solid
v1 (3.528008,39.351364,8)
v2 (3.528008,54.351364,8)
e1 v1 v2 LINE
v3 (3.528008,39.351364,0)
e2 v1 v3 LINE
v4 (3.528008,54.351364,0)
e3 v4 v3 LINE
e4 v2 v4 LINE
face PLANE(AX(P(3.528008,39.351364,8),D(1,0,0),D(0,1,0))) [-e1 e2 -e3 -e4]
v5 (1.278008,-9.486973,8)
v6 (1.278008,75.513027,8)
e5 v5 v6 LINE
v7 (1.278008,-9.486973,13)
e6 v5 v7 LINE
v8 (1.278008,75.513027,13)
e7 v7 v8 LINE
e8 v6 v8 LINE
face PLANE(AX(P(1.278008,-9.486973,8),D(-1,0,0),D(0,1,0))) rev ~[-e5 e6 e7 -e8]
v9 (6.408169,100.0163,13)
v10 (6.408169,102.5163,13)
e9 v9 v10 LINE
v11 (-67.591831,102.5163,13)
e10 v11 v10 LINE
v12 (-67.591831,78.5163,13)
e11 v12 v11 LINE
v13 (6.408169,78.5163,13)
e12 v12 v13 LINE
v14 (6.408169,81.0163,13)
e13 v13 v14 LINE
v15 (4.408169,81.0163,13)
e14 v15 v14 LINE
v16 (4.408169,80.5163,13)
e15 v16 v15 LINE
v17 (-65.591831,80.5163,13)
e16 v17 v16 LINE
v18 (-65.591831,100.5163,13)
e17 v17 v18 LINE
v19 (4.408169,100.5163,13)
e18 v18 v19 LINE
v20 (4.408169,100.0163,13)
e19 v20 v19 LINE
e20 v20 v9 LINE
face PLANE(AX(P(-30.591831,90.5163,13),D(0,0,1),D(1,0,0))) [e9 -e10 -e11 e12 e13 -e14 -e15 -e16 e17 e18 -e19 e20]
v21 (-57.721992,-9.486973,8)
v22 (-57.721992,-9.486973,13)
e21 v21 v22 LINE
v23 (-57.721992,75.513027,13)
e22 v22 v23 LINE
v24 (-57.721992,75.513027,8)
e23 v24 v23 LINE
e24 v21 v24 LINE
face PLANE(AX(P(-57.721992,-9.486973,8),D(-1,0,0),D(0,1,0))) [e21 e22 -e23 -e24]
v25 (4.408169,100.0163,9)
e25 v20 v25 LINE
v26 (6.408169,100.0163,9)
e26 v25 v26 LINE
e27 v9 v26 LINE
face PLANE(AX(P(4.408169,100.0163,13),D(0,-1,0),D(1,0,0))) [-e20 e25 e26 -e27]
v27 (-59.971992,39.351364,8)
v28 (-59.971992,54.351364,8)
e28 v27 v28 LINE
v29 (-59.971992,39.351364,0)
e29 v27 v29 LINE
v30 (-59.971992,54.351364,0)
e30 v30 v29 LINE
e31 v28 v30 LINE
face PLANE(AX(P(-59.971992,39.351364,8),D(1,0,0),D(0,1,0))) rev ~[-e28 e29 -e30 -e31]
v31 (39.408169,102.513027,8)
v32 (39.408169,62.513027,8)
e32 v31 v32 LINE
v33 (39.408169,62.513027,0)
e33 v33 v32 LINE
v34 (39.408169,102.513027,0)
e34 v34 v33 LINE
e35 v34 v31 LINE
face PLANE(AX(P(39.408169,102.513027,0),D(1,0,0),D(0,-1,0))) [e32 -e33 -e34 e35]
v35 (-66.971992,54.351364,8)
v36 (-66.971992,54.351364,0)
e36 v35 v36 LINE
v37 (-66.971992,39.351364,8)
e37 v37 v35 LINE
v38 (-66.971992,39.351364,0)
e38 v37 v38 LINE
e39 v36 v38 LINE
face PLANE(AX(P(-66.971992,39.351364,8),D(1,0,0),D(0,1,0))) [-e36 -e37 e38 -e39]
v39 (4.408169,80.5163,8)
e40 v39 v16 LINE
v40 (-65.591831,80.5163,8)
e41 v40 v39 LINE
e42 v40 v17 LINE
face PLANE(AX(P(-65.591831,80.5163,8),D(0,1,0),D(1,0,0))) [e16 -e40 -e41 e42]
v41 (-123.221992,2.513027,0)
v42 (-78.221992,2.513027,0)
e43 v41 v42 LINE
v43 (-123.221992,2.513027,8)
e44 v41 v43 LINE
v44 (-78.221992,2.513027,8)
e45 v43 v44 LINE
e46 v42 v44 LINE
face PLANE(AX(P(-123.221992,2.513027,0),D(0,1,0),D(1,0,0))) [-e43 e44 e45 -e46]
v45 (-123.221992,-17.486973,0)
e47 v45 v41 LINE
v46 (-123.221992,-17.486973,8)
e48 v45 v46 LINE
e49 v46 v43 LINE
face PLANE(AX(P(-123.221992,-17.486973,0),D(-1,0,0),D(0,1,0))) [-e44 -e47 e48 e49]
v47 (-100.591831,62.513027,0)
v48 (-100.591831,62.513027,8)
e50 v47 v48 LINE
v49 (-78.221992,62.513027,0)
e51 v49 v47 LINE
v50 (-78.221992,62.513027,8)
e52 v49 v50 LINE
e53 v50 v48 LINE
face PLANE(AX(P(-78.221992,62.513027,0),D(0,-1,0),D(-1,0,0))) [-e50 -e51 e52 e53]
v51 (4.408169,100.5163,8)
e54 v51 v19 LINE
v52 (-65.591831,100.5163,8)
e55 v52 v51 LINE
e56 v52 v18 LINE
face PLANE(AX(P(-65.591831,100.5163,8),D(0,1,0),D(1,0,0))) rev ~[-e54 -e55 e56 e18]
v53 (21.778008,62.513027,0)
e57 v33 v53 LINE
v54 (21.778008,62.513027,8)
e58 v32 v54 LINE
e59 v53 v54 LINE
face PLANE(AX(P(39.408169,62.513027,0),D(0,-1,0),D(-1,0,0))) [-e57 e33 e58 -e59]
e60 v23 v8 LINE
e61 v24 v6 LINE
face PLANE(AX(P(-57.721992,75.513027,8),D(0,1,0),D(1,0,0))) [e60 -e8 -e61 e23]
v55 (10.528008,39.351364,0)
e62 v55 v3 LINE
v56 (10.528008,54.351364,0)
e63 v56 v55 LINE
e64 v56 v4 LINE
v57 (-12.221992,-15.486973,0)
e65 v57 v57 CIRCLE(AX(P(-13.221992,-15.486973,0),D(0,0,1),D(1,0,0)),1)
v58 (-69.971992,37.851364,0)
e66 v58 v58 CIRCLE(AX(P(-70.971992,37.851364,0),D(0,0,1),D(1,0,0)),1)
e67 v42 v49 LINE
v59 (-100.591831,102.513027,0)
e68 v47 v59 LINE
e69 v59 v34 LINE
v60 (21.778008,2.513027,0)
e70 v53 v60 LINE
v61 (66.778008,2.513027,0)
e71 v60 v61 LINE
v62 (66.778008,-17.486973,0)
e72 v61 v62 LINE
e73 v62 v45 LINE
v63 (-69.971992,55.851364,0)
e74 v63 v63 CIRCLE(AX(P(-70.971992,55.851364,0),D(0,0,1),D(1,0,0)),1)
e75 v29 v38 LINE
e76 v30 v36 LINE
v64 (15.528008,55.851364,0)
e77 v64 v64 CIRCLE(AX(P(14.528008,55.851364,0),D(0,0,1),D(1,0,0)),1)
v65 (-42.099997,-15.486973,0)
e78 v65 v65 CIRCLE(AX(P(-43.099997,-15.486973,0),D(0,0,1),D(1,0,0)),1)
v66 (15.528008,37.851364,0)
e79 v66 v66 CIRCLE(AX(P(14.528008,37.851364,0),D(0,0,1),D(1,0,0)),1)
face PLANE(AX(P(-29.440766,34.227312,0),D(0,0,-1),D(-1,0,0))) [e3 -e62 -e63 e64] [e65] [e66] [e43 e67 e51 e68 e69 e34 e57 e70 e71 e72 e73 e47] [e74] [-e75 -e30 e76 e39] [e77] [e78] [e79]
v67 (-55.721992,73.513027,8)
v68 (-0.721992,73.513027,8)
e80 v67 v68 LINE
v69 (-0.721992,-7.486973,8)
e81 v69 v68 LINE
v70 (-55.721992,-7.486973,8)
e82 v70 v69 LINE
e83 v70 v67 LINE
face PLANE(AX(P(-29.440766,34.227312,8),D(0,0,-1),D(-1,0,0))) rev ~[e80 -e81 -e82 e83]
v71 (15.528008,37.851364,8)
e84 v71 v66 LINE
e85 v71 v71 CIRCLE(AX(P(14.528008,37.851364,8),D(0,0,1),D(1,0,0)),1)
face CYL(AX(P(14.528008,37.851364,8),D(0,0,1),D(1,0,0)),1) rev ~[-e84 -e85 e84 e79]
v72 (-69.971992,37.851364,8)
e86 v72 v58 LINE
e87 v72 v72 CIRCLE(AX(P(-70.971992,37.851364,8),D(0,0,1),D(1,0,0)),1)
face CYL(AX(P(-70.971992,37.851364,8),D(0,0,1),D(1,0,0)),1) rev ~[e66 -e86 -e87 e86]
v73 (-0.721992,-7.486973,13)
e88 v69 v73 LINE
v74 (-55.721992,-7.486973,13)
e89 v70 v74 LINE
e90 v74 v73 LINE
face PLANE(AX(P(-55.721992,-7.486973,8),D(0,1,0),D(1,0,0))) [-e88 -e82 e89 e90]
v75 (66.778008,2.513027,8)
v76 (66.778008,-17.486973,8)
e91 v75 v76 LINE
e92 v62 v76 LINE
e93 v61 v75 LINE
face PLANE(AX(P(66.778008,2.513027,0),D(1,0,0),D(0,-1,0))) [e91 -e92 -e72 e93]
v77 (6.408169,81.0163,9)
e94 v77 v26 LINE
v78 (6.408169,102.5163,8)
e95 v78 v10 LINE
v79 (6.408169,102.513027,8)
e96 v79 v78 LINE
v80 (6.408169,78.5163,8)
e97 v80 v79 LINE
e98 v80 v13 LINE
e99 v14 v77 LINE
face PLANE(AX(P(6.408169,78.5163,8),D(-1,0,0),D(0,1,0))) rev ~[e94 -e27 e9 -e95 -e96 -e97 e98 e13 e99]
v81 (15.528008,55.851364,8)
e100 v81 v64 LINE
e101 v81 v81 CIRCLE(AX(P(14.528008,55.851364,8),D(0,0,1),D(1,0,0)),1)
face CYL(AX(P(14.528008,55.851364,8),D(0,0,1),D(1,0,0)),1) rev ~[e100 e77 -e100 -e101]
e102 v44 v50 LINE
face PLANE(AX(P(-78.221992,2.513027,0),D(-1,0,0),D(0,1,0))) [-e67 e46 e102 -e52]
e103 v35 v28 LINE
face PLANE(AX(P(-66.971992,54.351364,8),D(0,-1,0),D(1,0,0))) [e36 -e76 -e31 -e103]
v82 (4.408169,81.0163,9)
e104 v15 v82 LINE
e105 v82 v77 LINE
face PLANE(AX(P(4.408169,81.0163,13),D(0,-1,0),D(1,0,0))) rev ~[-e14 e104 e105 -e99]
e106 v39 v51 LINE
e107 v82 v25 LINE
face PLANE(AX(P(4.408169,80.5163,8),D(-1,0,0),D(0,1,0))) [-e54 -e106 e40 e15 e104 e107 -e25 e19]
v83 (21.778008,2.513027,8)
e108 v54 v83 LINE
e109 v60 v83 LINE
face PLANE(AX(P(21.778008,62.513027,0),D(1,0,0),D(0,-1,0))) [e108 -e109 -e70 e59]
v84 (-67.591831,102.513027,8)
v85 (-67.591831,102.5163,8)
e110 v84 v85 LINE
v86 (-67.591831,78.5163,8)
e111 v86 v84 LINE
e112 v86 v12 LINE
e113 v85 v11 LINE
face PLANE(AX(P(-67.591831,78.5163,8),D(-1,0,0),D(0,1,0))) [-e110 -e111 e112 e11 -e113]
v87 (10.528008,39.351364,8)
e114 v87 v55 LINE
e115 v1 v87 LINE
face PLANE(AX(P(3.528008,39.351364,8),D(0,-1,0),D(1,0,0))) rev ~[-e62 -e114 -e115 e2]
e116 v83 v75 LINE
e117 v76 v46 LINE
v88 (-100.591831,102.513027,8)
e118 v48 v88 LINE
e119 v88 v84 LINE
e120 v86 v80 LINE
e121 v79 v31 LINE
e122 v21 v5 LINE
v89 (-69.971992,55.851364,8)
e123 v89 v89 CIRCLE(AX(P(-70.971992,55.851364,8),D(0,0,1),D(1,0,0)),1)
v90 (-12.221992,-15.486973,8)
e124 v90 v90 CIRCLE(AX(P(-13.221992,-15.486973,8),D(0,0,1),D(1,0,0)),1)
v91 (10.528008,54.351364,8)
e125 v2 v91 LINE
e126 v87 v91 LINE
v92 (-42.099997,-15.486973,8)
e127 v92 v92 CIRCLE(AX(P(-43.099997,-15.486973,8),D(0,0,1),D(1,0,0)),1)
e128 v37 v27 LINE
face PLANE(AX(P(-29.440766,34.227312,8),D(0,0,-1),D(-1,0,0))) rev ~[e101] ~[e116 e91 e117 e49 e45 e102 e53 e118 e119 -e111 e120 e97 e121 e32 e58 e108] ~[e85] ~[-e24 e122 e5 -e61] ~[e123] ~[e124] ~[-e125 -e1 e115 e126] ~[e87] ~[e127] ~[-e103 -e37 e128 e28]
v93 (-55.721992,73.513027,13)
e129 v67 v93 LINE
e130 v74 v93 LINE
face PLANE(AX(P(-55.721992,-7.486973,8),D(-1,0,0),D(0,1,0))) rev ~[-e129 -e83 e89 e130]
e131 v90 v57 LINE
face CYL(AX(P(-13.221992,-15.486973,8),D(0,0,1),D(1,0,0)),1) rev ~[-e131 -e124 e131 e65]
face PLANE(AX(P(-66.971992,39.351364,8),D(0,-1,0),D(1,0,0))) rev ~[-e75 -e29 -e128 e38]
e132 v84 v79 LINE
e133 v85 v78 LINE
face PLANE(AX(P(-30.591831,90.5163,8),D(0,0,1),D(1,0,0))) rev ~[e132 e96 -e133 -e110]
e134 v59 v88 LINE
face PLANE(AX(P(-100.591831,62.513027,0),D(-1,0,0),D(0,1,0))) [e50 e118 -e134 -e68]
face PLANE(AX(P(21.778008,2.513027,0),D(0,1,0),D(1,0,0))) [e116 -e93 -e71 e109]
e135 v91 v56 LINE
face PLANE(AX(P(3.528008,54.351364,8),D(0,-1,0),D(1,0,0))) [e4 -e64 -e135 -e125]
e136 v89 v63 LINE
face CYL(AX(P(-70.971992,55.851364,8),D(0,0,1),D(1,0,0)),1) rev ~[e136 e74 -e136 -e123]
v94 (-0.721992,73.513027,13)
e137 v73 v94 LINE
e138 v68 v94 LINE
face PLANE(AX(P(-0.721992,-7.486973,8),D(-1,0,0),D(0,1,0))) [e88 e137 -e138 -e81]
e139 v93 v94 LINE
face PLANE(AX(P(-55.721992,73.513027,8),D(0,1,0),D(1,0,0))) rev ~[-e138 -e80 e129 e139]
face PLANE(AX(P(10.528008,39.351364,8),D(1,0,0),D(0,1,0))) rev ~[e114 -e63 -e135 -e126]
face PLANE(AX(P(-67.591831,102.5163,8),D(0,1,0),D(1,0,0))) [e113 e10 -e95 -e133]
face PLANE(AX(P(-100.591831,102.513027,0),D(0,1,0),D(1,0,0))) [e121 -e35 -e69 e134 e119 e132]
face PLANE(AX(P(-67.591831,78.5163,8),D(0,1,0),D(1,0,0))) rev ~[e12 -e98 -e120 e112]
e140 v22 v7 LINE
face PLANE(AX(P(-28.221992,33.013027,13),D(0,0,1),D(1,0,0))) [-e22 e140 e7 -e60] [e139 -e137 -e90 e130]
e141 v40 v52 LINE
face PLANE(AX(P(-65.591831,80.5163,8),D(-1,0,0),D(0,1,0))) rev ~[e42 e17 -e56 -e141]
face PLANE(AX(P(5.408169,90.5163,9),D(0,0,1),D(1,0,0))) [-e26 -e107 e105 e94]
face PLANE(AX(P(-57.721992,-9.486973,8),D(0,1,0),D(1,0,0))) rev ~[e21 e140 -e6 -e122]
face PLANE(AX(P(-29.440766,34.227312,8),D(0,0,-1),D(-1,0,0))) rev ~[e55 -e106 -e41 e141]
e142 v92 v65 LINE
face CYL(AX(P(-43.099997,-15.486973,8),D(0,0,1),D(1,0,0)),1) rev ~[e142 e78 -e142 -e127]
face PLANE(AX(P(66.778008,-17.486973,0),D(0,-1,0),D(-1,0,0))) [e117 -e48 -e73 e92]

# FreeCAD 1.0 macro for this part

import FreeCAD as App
import Part
import Sketcher
from FreeCAD import Vector

doc = App.newDocument("Part")
body = doc.addObject("PartDesign::Body", "Body")

sketch1 = doc.addObject("Sketcher::SketchObject", "Sketch")
body.addObject(sketch1)
sketch1.AttachmentSupport = (doc.XY_Plane, [""])
sketch1.MapMode = "FlatFace"
sketch1.addGeometry([
    Part.LineSegment(Vector(39.408169, 62.513027, 0), Vector(39.408169, 102.513027, 0)),
    Part.LineSegment(Vector(39.408169, 102.513027, 0), Vector(-100.591831, 102.513027, 0)),
    Part.LineSegment(Vector(-100.591831, 102.513027, 0), Vector(-100.591831, 62.513027, 0)),
    Part.LineSegment(Vector(-100.591831, 62.513027, 0), Vector(-78.221992, 62.513027, 0)),
    Part.LineSegment(Vector(-78.221992, 62.513027, 0), Vector(-78.221992, 2.513027, 0)),
    Part.LineSegment(Vector(-78.221992, 2.513027, 0), Vector(-123.221992, 2.513027, 0)),
    Part.LineSegment(Vector(-123.221992, 2.513027, 0), Vector(-123.221992, -17.486973, 0)),
    Part.LineSegment(Vector(-123.221992, -17.486973, 0), Vector(66.778008, -17.486973, 0)),
    Part.LineSegment(Vector(66.778008, -17.486973, 0), Vector(66.778008, 2.513027, 0)),
    Part.LineSegment(Vector(66.778008, 2.513027, 0), Vector(21.778008, 2.513027, 0)),
    Part.LineSegment(Vector(21.778008, 2.513027, 0), Vector(21.778008, 62.513027, 0)),
    Part.LineSegment(Vector(21.778008, 62.513027, 0), Vector(39.408169, 62.513027, 0)),
], False)
sketch1.addConstraint([
    Sketcher.Constraint("Coincident", 0, 2, 1, 1),
    Sketcher.Constraint("Coincident", 1, 2, 2, 1),
    Sketcher.Constraint("Coincident", 2, 2, 3, 1),
    Sketcher.Constraint("Coincident", 3, 2, 4, 1),
    Sketcher.Constraint("Coincident", 4, 2, 5, 1),
    Sketcher.Constraint("Coincident", 5, 2, 6, 1),
    Sketcher.Constraint("Coincident", 6, 2, 7, 1),
    Sketcher.Constraint("Coincident", 7, 2, 8, 1),
    Sketcher.Constraint("Coincident", 8, 2, 9, 1),
    Sketcher.Constraint("Coincident", 9, 2, 10, 1),
    Sketcher.Constraint("Coincident", 10, 2, 11, 1),
    Sketcher.Constraint("Coincident", 11, 2, 0, 1),
    Sketcher.Constraint("Vertical", 0),
    Sketcher.Constraint("Horizontal", 1),
    Sketcher.Constraint("Vertical", 2),
    Sketcher.Constraint("Horizontal", 3),
    Sketcher.Constraint("Vertical", 4),
    Sketcher.Constraint("Horizontal", 5),
    Sketcher.Constraint("Vertical", 6),
    Sketcher.Constraint("Horizontal", 7),
    Sketcher.Constraint("Vertical", 8),
    Sketcher.Constraint("Horizontal", 9),
    Sketcher.Constraint("Vertical", 10),
    Sketcher.Constraint("Horizontal", 11),
    Sketcher.Constraint("Horizontal", 5, 2, 8, 2),
    Sketcher.Constraint("Horizontal", 3, 2, 10, 2),
    Sketcher.Constraint("Equal", 5, 9),
    Sketcher.Constraint("DistanceX", 1, 2, 1, 1, 140.0),
    Sketcher.Constraint("DistanceX", 5, 2, 5, 1, 45.0),
    Sketcher.Constraint("DistanceX", 7, 1, 7, 2, 190.0),
    Sketcher.Constraint("DistanceY", 0, 1, 0, 2, 40.0),
    Sketcher.Constraint("DistanceY", 4, 2, 4, 1, 60.0),
    Sketcher.Constraint("DistanceY", 6, 2, 6, 1, 20.0),
    Sketcher.Constraint("DistanceX", 3, 1, 3, 2, 22.369838),
    Sketcher.Constraint("DistanceX", -1, 1, 0, 2, 39.408169),
    Sketcher.Constraint("DistanceY", -1, 1, 0, 2, 102.513027),
])
pad1 = doc.addObject("PartDesign::Pad", "Pad")
body.addObject(pad1)
pad1.Profile = sketch1
pad1.Length = 8

sketch2 = doc.addObject("Sketcher::SketchObject", "Sketch001")
body.addObject(sketch2)
sketch2.AttachmentSupport = (doc.XY_Plane, [""])
sketch2.MapMode = "FlatFace"
sketch2.AttachmentOffset = App.Placement(Vector(0, 0, 8), App.Rotation())
sketch2.addGeometry([
    Part.LineSegment(Vector(-57.721992, 75.513027, 0), Vector(-57.721992, -9.486973, 0)),
    Part.LineSegment(Vector(-57.721992, -9.486973, 0), Vector(1.278008, -9.486973, 0)),
    Part.LineSegment(Vector(1.278008, -9.486973, 0), Vector(1.278008, 75.513027, 0)),
    Part.LineSegment(Vector(1.278008, 75.513027, 0), Vector(-57.721992, 75.513027, 0)),
    Part.LineSegment(Vector(-0.721992, -7.486973, 0), Vector(-55.721992, -7.486973, 0)),
    Part.LineSegment(Vector(-55.721992, -7.486973, 0), Vector(-55.721992, 73.513027, 0)),
    Part.LineSegment(Vector(-55.721992, 73.513027, 0), Vector(-0.721992, 73.513027, 0)),
    Part.LineSegment(Vector(-0.721992, 73.513027, 0), Vector(-0.721992, -7.486973, 0)),
], False)
sketch2.addConstraint([
    Sketcher.Constraint("Coincident", 0, 2, 1, 1),
    Sketcher.Constraint("Coincident", 1, 2, 2, 1),
    Sketcher.Constraint("Coincident", 2, 2, 3, 1),
    Sketcher.Constraint("Coincident", 3, 2, 0, 1),
    Sketcher.Constraint("Coincident", 4, 2, 5, 1),
    Sketcher.Constraint("Coincident", 5, 2, 6, 1),
    Sketcher.Constraint("Coincident", 6, 2, 7, 1),
    Sketcher.Constraint("Coincident", 7, 2, 4, 1),
    Sketcher.Constraint("Vertical", 0),
    Sketcher.Constraint("Horizontal", 1),
    Sketcher.Constraint("Vertical", 2),
    Sketcher.Constraint("Horizontal", 3),
    Sketcher.Constraint("Horizontal", 4),
    Sketcher.Constraint("Vertical", 5),
    Sketcher.Constraint("Horizontal", 6),
    Sketcher.Constraint("Vertical", 7),
    Sketcher.Constraint("DistanceX", 1, 1, 1, 2, 59.0),
    Sketcher.Constraint("DistanceX", 4, 2, 4, 1, 55.0),
    Sketcher.Constraint("DistanceY", 0, 2, 0, 1, 85.0),
    Sketcher.Constraint("DistanceY", 5, 1, 5, 2, 81.0),
    Sketcher.Constraint("DistanceX", 0, 2, 4, 2, 2.0),
    Sketcher.Constraint("DistanceY", 0, 2, 4, 2, 2.0),
    Sketcher.Constraint("DistanceX", 0, 2, -1, 1, 57.721992),
    Sketcher.Constraint("DistanceY", 0, 2, -1, 1, 9.486973),
])
pad2 = doc.addObject("PartDesign::Pad", "Pad001")
body.addObject(pad2)
pad2.Profile = sketch2
pad2.Length = 5

sketch3 = doc.addObject("Sketcher::SketchObject", "Sketch002")
body.addObject(sketch3)
sketch3.AttachmentSupport = (doc.XY_Plane, [""])
sketch3.MapMode = "FlatFace"
sketch3.AttachmentOffset = App.Placement(Vector(0, 0, 8), App.Rotation())
sketch3.addGeometry([
    Part.Circle(Vector(-13.221992, -15.486973, 0), Vector(0, 0, 1), 1),
    Part.Circle(Vector(-43.099997, -15.486973, 0), Vector(0, 0, 1), 1),
], False)
sketch3.addConstraint([
    Sketcher.Constraint("Equal", 0, 1),
    Sketcher.Constraint("Horizontal", 0, 3, 1, 3),
    Sketcher.Constraint("Diameter", 0, 2.0),
    Sketcher.Constraint("DistanceX", 0, 3, -1, 1, 13.221992),
    Sketcher.Constraint("DistanceY", 0, 3, -1, 1, 15.486973),
    Sketcher.Constraint("DistanceX", 1, 3, -1, 1, 43.099997),
])
pocket1 = doc.addObject("PartDesign::Pocket", "Pocket")
body.addObject(pocket1)
pocket1.Profile = sketch3
pocket1.Type = "ThroughAll"

sketch4 = doc.addObject("Sketcher::SketchObject", "Sketch003")
body.addObject(sketch4)
sketch4.AttachmentSupport = (doc.XY_Plane, [""])
sketch4.MapMode = "FlatFace"
sketch4.AttachmentOffset = App.Placement(Vector(0, 0, 8), App.Rotation())
sketch4.addGeometry([
    Part.LineSegment(Vector(-67.591831, 102.5163, 0), Vector(-67.591831, 78.5163, 0)),
    Part.LineSegment(Vector(-67.591831, 78.5163, 0), Vector(6.408169, 78.5163, 0)),
    Part.LineSegment(Vector(6.408169, 78.5163, 0), Vector(6.408169, 102.5163, 0)),
    Part.LineSegment(Vector(6.408169, 102.5163, 0), Vector(-67.591831, 102.5163, 0)),
    Part.LineSegment(Vector(4.408169, 80.5163, 0), Vector(-65.591831, 80.5163, 0)),
    Part.LineSegment(Vector(-65.591831, 80.5163, 0), Vector(-65.591831, 100.5163, 0)),
    Part.LineSegment(Vector(-65.591831, 100.5163, 0), Vector(4.408169, 100.5163, 0)),
    Part.LineSegment(Vector(4.408169, 100.5163, 0), Vector(4.408169, 80.5163, 0)),
], False)
sketch4.addConstraint([
    Sketcher.Constraint("Coincident", 0, 2, 1, 1),
    Sketcher.Constraint("Coincident", 1, 2, 2, 1),
    Sketcher.Constraint("Coincident", 2, 2, 3, 1),
    Sketcher.Constraint("Coincident", 3, 2, 0, 1),
    Sketcher.Constraint("Coincident", 4, 2, 5, 1),
    Sketcher.Constraint("Coincident", 5, 2, 6, 1),
    Sketcher.Constraint("Coincident", 6, 2, 7, 1),
    Sketcher.Constraint("Coincident", 7, 2, 4, 1),
    Sketcher.Constraint("Vertical", 0),
    Sketcher.Constraint("Horizontal", 1),
    Sketcher.Constraint("Vertical", 2),
    Sketcher.Constraint("Horizontal", 3),
    Sketcher.Constraint("Horizontal", 4),
    Sketcher.Constraint("Vertical", 5),
    Sketcher.Constraint("Horizontal", 6),
    Sketcher.Constraint("Vertical", 7),
    Sketcher.Constraint("DistanceX", 1, 1, 1, 2, 74.0),
    Sketcher.Constraint("DistanceX", 4, 2, 4, 1, 70.0),
    Sketcher.Constraint("DistanceY", 0, 2, 0, 1, 24.0),
    Sketcher.Constraint("DistanceY", 5, 1, 5, 2, 20.0),
    Sketcher.Constraint("DistanceX", 0, 2, 4, 2, 2.0),
    Sketcher.Constraint("DistanceY", 0, 2, 4, 2, 2.0),
    Sketcher.Constraint("DistanceY", -1, 1, 0, 2, 78.5163),
    Sketcher.Constraint("DistanceX", 0, 2, -1, 1, 67.591831),
])
pad3 = doc.addObject("PartDesign::Pad", "Pad002")
body.addObject(pad3)
pad3.Profile = sketch4
pad3.Length = 5

sketch5 = doc.addObject("Sketcher::SketchObject", "Sketch004")
body.addObject(sketch5)
sketch5.AttachmentSupport = (doc.XY_Plane, [""])
sketch5.MapMode = "FlatFace"
sketch5.AttachmentOffset = App.Placement(Vector(0, 0, 13), App.Rotation())
sketch5.addGeometry([
    Part.LineSegment(Vector(4.408169, 100.0163, 0), Vector(4.408169, 81.0163, 0)),
    Part.LineSegment(Vector(4.408169, 81.0163, 0), Vector(6.408169, 81.0163, 0)),
    Part.LineSegment(Vector(6.408169, 81.0163, 0), Vector(6.408169, 100.0163, 0)),
    Part.LineSegment(Vector(6.408169, 100.0163, 0), Vector(4.408169, 100.0163, 0)),
], False)
sketch5.addConstraint([
    Sketcher.Constraint("Coincident", 0, 2, 1, 1),
    Sketcher.Constraint("Coincident", 1, 2, 2, 1),
    Sketcher.Constraint("Coincident", 2, 2, 3, 1),
    Sketcher.Constraint("Coincident", 3, 2, 0, 1),
    Sketcher.Constraint("Vertical", 0),
    Sketcher.Constraint("Horizontal", 1),
    Sketcher.Constraint("Vertical", 2),
    Sketcher.Constraint("Horizontal", 3),
    Sketcher.Constraint("DistanceX", 1, 1, 1, 2, 2.0),
    Sketcher.Constraint("DistanceY", 0, 2, 0, 1, 19.0),
    Sketcher.Constraint("DistanceY", -1, 1, 0, 2, 81.0163),
    Sketcher.Constraint("DistanceX", -1, 1, 0, 2, 4.408169),
])
pocket2 = doc.addObject("PartDesign::Pocket", "Pocket001")
body.addObject(pocket2)
pocket2.Profile = sketch5
pocket2.Length = 4

sketch6 = doc.addObject("Sketcher::SketchObject", "Sketch005")
body.addObject(sketch6)
sketch6.AttachmentSupport = (doc.XY_Plane, [""])
sketch6.MapMode = "FlatFace"
sketch6.AttachmentOffset = App.Placement(Vector(0, 0, 8), App.Rotation())
sketch6.addGeometry([
    Part.Circle(Vector(-70.971992, 55.851364, 0), Vector(0, 0, 1), 1),
    Part.Circle(Vector(14.528008, 37.851364, 0), Vector(0, 0, 1), 1),
    Part.LineSegment(Vector(3.528008, 54.351364, 0), Vector(3.528008, 39.351364, 0)),
    Part.LineSegment(Vector(3.528008, 39.351364, 0), Vector(10.528008, 39.351364, 0)),
    Part.LineSegment(Vector(10.528008, 39.351364, 0), Vector(10.528008, 54.351364, 0)),
    Part.LineSegment(Vector(10.528008, 54.351364, 0), Vector(3.528008, 54.351364, 0)),
    Part.Circle(Vector(14.528008, 55.851364, 0), Vector(0, 0, 1), 1),
    Part.LineSegment(Vector(-66.971992, 54.351364, 0), Vector(-66.971992, 39.351364, 0)),
    Part.LineSegment(Vector(-66.971992, 39.351364, 0), Vector(-59.971992, 39.351364, 0)),
    Part.LineSegment(Vector(-59.971992, 39.351364, 0), Vector(-59.971992, 54.351364, 0)),
    Part.LineSegment(Vector(-59.971992, 54.351364, 0), Vector(-66.971992, 54.351364, 0)),
    Part.Circle(Vector(-70.971992, 37.851364, 0), Vector(0, 0, 1), 1),
], False)
sketch6.addConstraint([
    Sketcher.Constraint("Coincident", 2, 2, 3, 1),
    Sketcher.Constraint("Coincident", 3, 2, 4, 1),
    Sketcher.Constraint("Coincident", 4, 2, 5, 1),
    Sketcher.Constraint("Coincident", 5, 2, 2, 1),
    Sketcher.Constraint("Coincident", 7, 2, 8, 1),
    Sketcher.Constraint("Coincident", 8, 2, 9, 1),
    Sketcher.Constraint("Coincident", 9, 2, 10, 1),
    Sketcher.Constraint("Coincident", 10, 2, 7, 1),
    Sketcher.Constraint("Vertical", 2),
    Sketcher.Constraint("Horizontal", 3),
    Sketcher.Constraint("Vertical", 4),
    Sketcher.Constraint("Horizontal", 5),
    Sketcher.Constraint("Vertical", 7),
    Sketcher.Constraint("Horizontal", 8),
    Sketcher.Constraint("Vertical", 9),
    Sketcher.Constraint("Horizontal", 10),
    Sketcher.Constraint("Equal", 0, 1),
    Sketcher.Constraint("Equal", 1, 6),
    Sketcher.Constraint("Equal", 6, 11),
    Sketcher.Constraint("Horizontal", 0, 3, 6, 3),
    Sketcher.Constraint("Horizontal", 1, 3, 11, 3),
    Sketcher.Constraint("Horizontal", 3, 2, 7, 2),
    Sketcher.Constraint("Horizontal", 5, 2, 9, 2),
    Sketcher.Constraint("Vertical", 1, 3, 6, 3),
    Sketcher.Constraint("Vertical", 0, 3, 11, 3),
    Sketcher.Constraint("Equal", 5, 8),
    Sketcher.Constraint("Diameter", 0, 2.0),
    Sketcher.Constraint("DistanceX", 3, 1, 3, 2, 7.0),
    Sketcher.Constraint("DistanceY", 2, 2, 2, 1, 15.0),
    Sketcher.Constraint("DistanceY", 1, 3, 0, 3, 18.0),
    Sketcher.Constraint("DistanceX", 2, 2, 1, 3, 11.0),
    Sketcher.Constraint("DistanceX", 11, 3, 7, 2, 4.0),
    Sketcher.Constraint("DistanceX", 0, 3, 1, 3, 85.5),
    Sketcher.Constraint("DistanceY", 1, 3, 2, 2, 1.5),
    Sketcher.Constraint("DistanceX", 0, 3, -1, 1, 70.971992),
    Sketcher.Constraint("DistanceY", -1, 1, 0, 3, 55.851364),
])
pocket3 = doc.addObject("PartDesign::Pocket", "Pocket002")
body.addObject(pocket3)
pocket3.Profile = sketch6
pocket3.Type = "ThroughAll"

doc.recompute()
